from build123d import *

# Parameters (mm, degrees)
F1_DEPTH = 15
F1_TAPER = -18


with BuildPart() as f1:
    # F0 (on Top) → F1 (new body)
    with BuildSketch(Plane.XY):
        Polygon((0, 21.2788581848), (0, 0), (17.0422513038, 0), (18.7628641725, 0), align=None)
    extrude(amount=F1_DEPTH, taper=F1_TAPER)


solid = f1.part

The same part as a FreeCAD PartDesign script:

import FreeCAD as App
import Part
import Sketcher
from FreeCAD import Vector
Q = App.Units.Quantity


def add_polygon(sketch, points):
    """Adds a closed chain of lines whose ends are joined by coincident constraints."""
    first, n = sketch.GeometryCount, len(points)
    for a, b in zip(points, points[1:] + points[:1]):
        sketch.addGeometry(Part.LineSegment(App.Vector(*a, 0), App.Vector(*b, 0)), False)
    for i in range(n):
        sketch.addConstraint(Sketcher.Constraint("Coincident", first + i, 2, first + (i + 1) % n, 1))

doc = App.newDocument("Part")
body = doc.addObject("PartDesign::Body", "Body")

# Sketch on XY plane
sketch1 = body.newObject("Sketcher::SketchObject", "Sketch")
sketch1.AttachmentSupport = (doc.getObject("XY_Plane"), [""])
sketch1.MapMode = "FlatFace"
add_polygon(sketch1, [(0, 21), (0, 0), (19, 0)])  # lines 0-2
sketch1.addConstraint([
    Sketcher.Constraint("Vertical", 0),
    Sketcher.Constraint("Horizontal", 1),
    Sketcher.Constraint("Coincident", 0, 2, -1, 1),
    Sketcher.Constraint("DistanceY", 0, 2, 0, 1, Q("21.278858 mm")),
    Sketcher.Constraint("Distance", 2, Q("28.369612 mm")),
])
pad1 = body.newObject("PartDesign::Pad", "Pad")
pad1.Profile = sketch1
pad1.Length = 15
pad1.TaperAngle = 18

doc.recompute()
